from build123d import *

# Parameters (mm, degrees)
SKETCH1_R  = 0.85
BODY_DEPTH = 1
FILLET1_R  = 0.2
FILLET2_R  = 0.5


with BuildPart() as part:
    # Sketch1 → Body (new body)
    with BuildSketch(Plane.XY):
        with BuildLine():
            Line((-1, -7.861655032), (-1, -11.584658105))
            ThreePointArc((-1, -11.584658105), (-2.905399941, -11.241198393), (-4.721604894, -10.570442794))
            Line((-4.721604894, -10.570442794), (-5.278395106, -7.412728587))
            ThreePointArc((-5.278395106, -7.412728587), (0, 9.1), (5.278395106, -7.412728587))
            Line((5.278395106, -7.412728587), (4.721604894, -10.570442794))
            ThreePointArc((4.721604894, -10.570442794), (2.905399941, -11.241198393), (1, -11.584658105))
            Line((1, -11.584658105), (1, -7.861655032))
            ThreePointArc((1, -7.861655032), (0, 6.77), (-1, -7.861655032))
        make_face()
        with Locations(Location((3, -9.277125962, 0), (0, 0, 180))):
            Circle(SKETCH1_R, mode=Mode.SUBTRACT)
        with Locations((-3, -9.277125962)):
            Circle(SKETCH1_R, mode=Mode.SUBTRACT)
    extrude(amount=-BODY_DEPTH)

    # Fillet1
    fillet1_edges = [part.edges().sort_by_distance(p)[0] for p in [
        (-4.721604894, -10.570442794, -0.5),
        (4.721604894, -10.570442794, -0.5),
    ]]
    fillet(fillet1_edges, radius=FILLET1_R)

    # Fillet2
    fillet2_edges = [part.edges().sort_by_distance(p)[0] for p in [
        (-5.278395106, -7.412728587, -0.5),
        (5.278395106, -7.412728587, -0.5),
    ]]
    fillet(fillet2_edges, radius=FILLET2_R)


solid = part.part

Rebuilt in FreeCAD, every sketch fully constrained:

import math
import FreeCAD as App
import Part
import Sketcher
from FreeCAD import Vector
Q = App.Units.Quantity


def edges_at(feature, points):
    """Names of the edges that pass closest to the given points."""
    edges = feature.Shape.Edges
    near = lambda p: min(range(len(edges)), key=lambda i: edges[i].distToShape(Part.Vertex(*p))[0])
    return sorted({f"Edge{near(p) + 1}" for p in points})

doc = App.newDocument("Part")
body = doc.addObject("PartDesign::Body", "Body")

sketch1 = body.newObject("Sketcher::SketchObject", "Sketch")
sketch1.AttachmentSupport = (doc.getObject("XY_Plane"), [""])
sketch1.MapMode = "FlatFace"
sketch1.addGeometry(Part.LineSegment(Vector(-1, -11.6, 0), Vector(-1, -7.9, 0)), False)
sketch1.addGeometry(Part.ArcOfCircle(Part.Circle(Vector(0, -0.6, 0), Vector(0, 0, 1), 7.3), math.radians(-82), math.radians(262)), False)
sketch1.addGeometry(Part.LineSegment(Vector(1, -7.9, 0), Vector(1, -11.6, 0)), False)
sketch1.addGeometry(Part.ArcOfCircle(Part.Circle(Vector(0, -0.6, 0), Vector(0, 0, 1), 11.1), math.radians(-85), math.radians(-65)), False)
sketch1.addGeometry(Part.LineSegment(Vector(4.7, -10.6, 0), Vector(5.3, -7.4, 0)), False)
sketch1.addGeometry(Part.ArcOfCircle(Part.Circle(Vector(0, 0, 0), Vector(0, 0, 1), 9.1), math.radians(-55), math.radians(235)), False)
sketch1.addGeometry(Part.LineSegment(Vector(-5.3, -7.4, 0), Vector(-4.7, -10.6, 0)), False)
sketch1.addGeometry(Part.ArcOfCircle(Part.Circle(Vector(0, -0.6, 0), Vector(0, 0, 1), 11.1), math.radians(-115), math.radians(-95)), False)
sketch1.addGeometry(Part.Circle(Vector(3, -9.3, 0), Vector(0, 0, 1), 0.8), False)
sketch1.addGeometry(Part.Circle(Vector(-3, -9.3, 0), Vector(0, 0, 1), 0.8), False)
sketch1.addConstraint(Sketcher.Constraint("Coincident", 0, 2, 1, 2))
sketch1.addConstraint(Sketcher.Constraint("Coincident", 1, 1, 2, 1))
sketch1.addConstraint(Sketcher.Constraint("Coincident", 2, 2, 3, 1))
sketch1.addConstraint(Sketcher.Constraint("Coincident", 3, 2, 4, 1))
sketch1.addConstraint(Sketcher.Constraint("Coincident", 4, 2, 5, 1))
sketch1.addConstraint(Sketcher.Constraint("Coincident", 5, 2, 6, 1))
sketch1.addConstraint(Sketcher.Constraint("Coincident", 6, 2, 7, 1))
sketch1.addConstraint(Sketcher.Constraint("Coincident", 7, 2, 0, 1))
sketch1.addConstraint(Sketcher.Constraint("Vertical", 0))
sketch1.addConstraint(Sketcher.Constraint("Vertical", 2))
sketch1.addConstraint(Sketcher.Constraint("Coincident", 5, 3, -1, 1))
sketch1.addConstraint(Sketcher.Constraint("Coincident", 3, 3, 1, 3))
sketch1.addConstraint(Sketcher.Constraint("Coincident", 7, 3, 1, 3))
sketch1.addConstraint(Sketcher.Constraint("Equal", 3, 7))
sketch1.addConstraint(Sketcher.Constraint("Equal", 8, 9))
sketch1.addConstraint(Sketcher.Constraint("Symmetric", 8, 3, 9, 3, -2))
sketch1.addConstraint(Sketcher.Constraint("Symmetric", 0, 2, 1, 1, -2))
sketch1.addConstraint(Sketcher.Constraint("Horizontal", 4, 2, 5, 2))
sketch1.addConstraint(Sketcher.Constraint("Horizontal", 3, 2, 6, 2))
sketch1.addConstraint(Sketcher.Constraint("Diameter", 8, Q("1.7 mm")))
sketch1.addConstraint(Sketcher.Constraint("Radius", 5, Q("9.1 mm")))
sketch1.addConstraint(Sketcher.Constraint("Angle", 4, Q("80 deg")))
sketch1.addConstraint(Sketcher.Constraint("Radius", 1, Q("7.35 mm")))
sketch1.addConstraint(Sketcher.Constraint("Radius", 3, Q("11.05 mm")))
sketch1.addConstraint(Sketcher.Constraint("DistanceX", -1, 1, 8, 3, Q("3 mm")))
sketch1.addConstraint(Sketcher.Constraint("DistanceX", 0, 2, -1, 1, Q("1 mm")))
sketch1.addConstraint(Sketcher.Constraint("DistanceY", 1, 3, -1, 1, Q("0.58 mm")))
sketch1.addConstraint(Sketcher.Constraint("DistanceY", 4, 2, -1, 1, Q("7.412729 mm")))
sketch1.addConstraint(Sketcher.Constraint("DistanceY", 9, 3, 0, 2, Q("1.415471 mm")))
pad1 = body.newObject("PartDesign::Pad", "Pad")
pad1.Profile = sketch1
pad1.Length = 1
pad1.Reversed = True
doc.recompute()

fillet = body.newObject("PartDesign::Fillet", "Fillet")
fillet.Base = (pad1, edges_at(pad1, [(-4.722, -10.57, -0.5), (4.722, -10.57, -0.5)]))
fillet.Radius = 0.2
doc.recompute()

fillet2 = body.newObject("PartDesign::Fillet", "Fillet001")
fillet2.Base = (fillet, edges_at(fillet, [(-5.278, -7.413, -0.5), (5.278, -7.413, -0.5)]))
fillet2.Radius = 0.5

doc.recompute()
